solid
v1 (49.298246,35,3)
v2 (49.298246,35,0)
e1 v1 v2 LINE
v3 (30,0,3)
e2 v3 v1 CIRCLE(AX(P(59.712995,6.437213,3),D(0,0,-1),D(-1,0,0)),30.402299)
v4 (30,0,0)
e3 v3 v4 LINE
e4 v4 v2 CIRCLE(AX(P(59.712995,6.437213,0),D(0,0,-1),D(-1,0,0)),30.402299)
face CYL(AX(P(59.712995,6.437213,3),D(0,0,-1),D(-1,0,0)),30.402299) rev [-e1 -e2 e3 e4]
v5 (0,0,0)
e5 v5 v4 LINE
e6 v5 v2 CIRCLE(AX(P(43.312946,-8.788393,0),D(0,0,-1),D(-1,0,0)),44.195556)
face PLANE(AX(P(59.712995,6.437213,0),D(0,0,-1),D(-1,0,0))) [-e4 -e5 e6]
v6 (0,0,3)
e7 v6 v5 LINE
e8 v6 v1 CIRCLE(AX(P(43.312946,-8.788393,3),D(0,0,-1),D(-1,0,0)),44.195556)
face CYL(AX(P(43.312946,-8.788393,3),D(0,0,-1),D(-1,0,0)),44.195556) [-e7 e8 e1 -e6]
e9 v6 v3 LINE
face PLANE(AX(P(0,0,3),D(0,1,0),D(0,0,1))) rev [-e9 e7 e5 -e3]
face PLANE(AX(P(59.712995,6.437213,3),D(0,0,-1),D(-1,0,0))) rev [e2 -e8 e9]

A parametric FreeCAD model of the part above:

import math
import FreeCAD as App
import Part
import Sketcher
Q = App.Units.Quantity

doc = App.newDocument("Part")
params = doc.addObject("Spreadsheet::Sheet", "Params")
for row, (alias, value) in enumerate([
    ("sketch1_width", "30 mm"),
    ("pad1_length", "3 mm"),
], start=1):
    params.set(f"A{row}", alias)
    params.set(f"B{row}", "=" + value)
    params.setAlias(f"B{row}", alias)

body = doc.addObject("PartDesign::Body", "Body")

# Sketch on XY plane
sketch1 = body.newObject("Sketcher::SketchObject", "Sketch")
sketch1.AttachmentSupport = (doc.getObject("XY_Plane"), [""])
sketch1.MapMode = "FlatFace"
sketch1.addGeometry([
    Part.LineSegment(App.Vector(0, 0, 0), App.Vector(30, 0, 0)),
    Part.ArcOfCircle(Part.Circle(App.Vector(59.712995, 6.437213, 0), App.Vector(0, 0, 1), 30.402299), math.radians(110.033196), math.radians(192.224013)),
    Part.ArcOfCircle(Part.Circle(App.Vector(43.312946, -8.788393, 0), App.Vector(0, 0, 1), 44.195556), math.radians(82.216652), math.radians(168.530141)),
], False)
sketch1.addConstraint([
    Sketcher.Constraint("Coincident", 0, 2, 1, 2),
    Sketcher.Constraint("Coincident", 1, 1, 2, 1),
    Sketcher.Constraint("Coincident", 2, 2, 0, 1),
    Sketcher.Constraint("Horizontal", 0),
    Sketcher.Constraint("Coincident", 2, 2, -1, 1),
    Sketcher.Constraint("DistanceX", 0, 1, 0, 2, Q("30 mm")),
    Sketcher.Constraint("DistanceY", -1, 1, 1, 1, Q("35 mm")),
    Sketcher.Constraint("Radius", 1, Q("30.402299 mm")),
    Sketcher.Constraint("Radius", 2, Q("44.195556 mm")),
    Sketcher.Constraint("DistanceX", 2, 3, 1, 1, Q("5.985299 mm")),
])
sketch1.setExpression("Constraints[5]", "Params.sketch1_width")
pad1 = body.newObject("PartDesign::Pad", "Pad")
pad1.Profile = sketch1
pad1.setExpression("Length", "Params.pad1_length")

doc.recompute()
